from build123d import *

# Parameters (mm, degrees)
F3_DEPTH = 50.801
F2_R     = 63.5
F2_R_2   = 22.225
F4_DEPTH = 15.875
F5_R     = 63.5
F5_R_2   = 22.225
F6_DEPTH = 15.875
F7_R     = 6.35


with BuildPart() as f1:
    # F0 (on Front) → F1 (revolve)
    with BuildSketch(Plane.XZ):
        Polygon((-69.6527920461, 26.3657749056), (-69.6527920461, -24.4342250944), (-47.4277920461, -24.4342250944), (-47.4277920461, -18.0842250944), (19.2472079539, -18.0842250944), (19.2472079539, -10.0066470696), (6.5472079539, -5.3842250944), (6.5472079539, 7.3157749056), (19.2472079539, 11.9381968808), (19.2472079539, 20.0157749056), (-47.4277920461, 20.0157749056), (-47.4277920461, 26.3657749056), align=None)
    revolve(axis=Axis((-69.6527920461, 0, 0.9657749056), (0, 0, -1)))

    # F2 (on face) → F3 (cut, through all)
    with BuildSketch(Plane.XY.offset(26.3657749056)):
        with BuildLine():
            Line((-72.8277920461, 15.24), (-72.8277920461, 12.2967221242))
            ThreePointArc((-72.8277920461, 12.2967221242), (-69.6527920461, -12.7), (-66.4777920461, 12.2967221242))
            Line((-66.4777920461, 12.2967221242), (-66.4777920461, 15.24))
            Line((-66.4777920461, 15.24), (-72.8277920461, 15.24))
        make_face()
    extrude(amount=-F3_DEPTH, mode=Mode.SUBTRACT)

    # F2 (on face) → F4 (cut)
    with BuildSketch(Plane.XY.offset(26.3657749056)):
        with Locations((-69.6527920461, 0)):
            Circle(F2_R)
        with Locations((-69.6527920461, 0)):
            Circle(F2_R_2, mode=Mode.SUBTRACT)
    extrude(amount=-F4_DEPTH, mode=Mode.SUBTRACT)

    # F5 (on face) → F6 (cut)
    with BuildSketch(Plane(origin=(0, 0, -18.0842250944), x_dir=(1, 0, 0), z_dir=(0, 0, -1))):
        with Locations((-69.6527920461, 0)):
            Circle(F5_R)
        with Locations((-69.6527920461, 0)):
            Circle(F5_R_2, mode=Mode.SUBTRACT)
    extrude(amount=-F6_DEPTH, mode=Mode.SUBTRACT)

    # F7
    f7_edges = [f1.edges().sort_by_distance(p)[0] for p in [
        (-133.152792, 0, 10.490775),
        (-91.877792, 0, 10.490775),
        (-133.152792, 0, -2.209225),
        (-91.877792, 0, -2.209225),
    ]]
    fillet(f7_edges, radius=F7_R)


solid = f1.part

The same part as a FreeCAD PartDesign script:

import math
import FreeCAD as App
import Part
import Sketcher
from FreeCAD import Vector
Q = App.Units.Quantity


def edges_at(feature, points):
    """Names of the edges that pass closest to the given points."""
    edges = feature.Shape.Edges
    near = lambda p: min(range(len(edges)), key=lambda i: edges[i].distToShape(Part.Vertex(*p))[0])
    return sorted({f"Edge{near(p) + 1}" for p in points})


def add_polygon(sketch, points):
    """Adds a closed chain of lines whose ends are joined by coincident constraints."""
    first, n = sketch.GeometryCount, len(points)
    for a, b in zip(points, points[1:] + points[:1]):
        sketch.addGeometry(Part.LineSegment(App.Vector(*a, 0), App.Vector(*b, 0)), False)
    for i in range(n):
        sketch.addConstraint(Sketcher.Constraint("Coincident", first + i, 2, first + (i + 1) % n, 1))

doc = App.newDocument("Part")
params = doc.addObject("Spreadsheet::Sheet", "Params")
for row, (alias, value) in enumerate([
    ("sketch1_height", "2 in"),
    ("sketch1_height2", "0.5 in"),
    ("sketch1_width", "0.875 in"),
    ("revolution_angle", "360 deg"),
    ("sketch2_radius", "0.5 in"),
    ("sketch2_width", "0.25 in"),
    ("sketch3_diameter", "5 in"),
    ("sketch3_diameter2", "1.75 in"),
    ("pocket2_length", "0.625 in"),
    ("sketch4_diameter", "5 in"),
    ("sketch4_diameter2", "1.75 in"),
    ("pocket3_length", "0.625 in"),
    ("fillet_radius", "0.25 in"),
], start=1):
    params.set(f"A{row}", alias)
    params.set(f"B{row}", "=" + value)
    params.setAlias(f"B{row}", alias)

body = doc.addObject("PartDesign::Body", "Body")

sketch1 = body.newObject("Sketcher::SketchObject", "Sketch")
sketch1.AttachmentSupport = (doc.getObject("XZ_Plane"), [""])
sketch1.MapMode = "FlatFace"
add_polygon(sketch1, [(-70, 26), (-70, -24), (-47, -24), (-47, -18), (19, -18), (19, -10), (7, -5), (7, 7), (19, 12), (19, 20), (-47, 20), (-47, 26)])
sketch1.addGeometry(Part.LineSegment(Vector(-70, 26, 0), Vector(-70, -24, 0)), True)
sketch1.addConstraint([
    Sketcher.Constraint("Vertical", 0),
    Sketcher.Constraint("Horizontal", 1),
    Sketcher.Constraint("Vertical", 2),
    Sketcher.Constraint("Horizontal", 3),
    Sketcher.Constraint("Vertical", 4),
    Sketcher.Constraint("Vertical", 6),
    Sketcher.Constraint("Vertical", 8),
    Sketcher.Constraint("Horizontal", 9),
    Sketcher.Constraint("Vertical", 10),
    Sketcher.Constraint("Horizontal", 11),
    Sketcher.Constraint("Vertical", 12),
    Sketcher.Constraint("Coincident", 12, 1, 11, 2),
    Sketcher.Constraint("Horizontal", 1, 2, 12, 2),
    Sketcher.Constraint("Vertical", 4, 2, 7, 2),
    Sketcher.Constraint("Vertical", 2, 2, 9, 2),
    Sketcher.Constraint("Equal", 4, 8),
    Sketcher.Constraint("Equal", 2, 10),
    Sketcher.Constraint("Equal", 5, 7),
    Sketcher.Constraint("DistanceY", 0, 2, 0, 1, Q("2 in")),
    Sketcher.Constraint("DistanceY", 6, 1, 6, 2, Q("0.5 in")),
    Sketcher.Constraint("Angle", 5, Q("160 deg")),
    Sketcher.Constraint("DistanceX", 0, 2, 5, 2, Q("3 in")),
    Sketcher.Constraint("DistanceY", 3, 2, 6, 2, Q("1 in")),
    Sketcher.Constraint("DistanceX", 0, 2, 3, 2, Q("3.5 in")),
    Sketcher.Constraint("DistanceX", 1, 1, 1, 2, Q("0.875 in")),
    Sketcher.Constraint("DistanceX", 0, 2, -1, 1, 69.652792),
    Sketcher.Constraint("DistanceY", 0, 2, -1, 1, 24.434225),
])
sketch1.setExpression("Constraints[30]", "Params.sketch1_height")
sketch1.setExpression("Constraints[31]", "Params.sketch1_height2")
sketch1.setExpression("Constraints[36]", "Params.sketch1_width")
revolution = body.newObject("PartDesign::Revolution", "Revolution")
revolution.Profile = sketch1
revolution.ReferenceAxis = (sketch1, ["Axis0"])
revolution.setExpression("Angle", "Params.revolution_angle")

sketch2 = body.newObject("Sketcher::SketchObject", "Sketch001")
sketch2.AttachmentSupport = (doc.getObject("XY_Plane"), [""])
sketch2.MapMode = "FlatFace"
sketch2.AttachmentOffset = App.Placement(Vector(0, 0, 26.365775), App.Rotation())
sketch2.addGeometry([
    Part.LineSegment(Vector(-72.8, 15.2, 0), Vector(-72.8, 12.3, 0)),
    Part.ArcOfCircle(Part.Circle(Vector(-69.7, 0, 0), Vector(0, 0, 1), 12.7), math.radians(104), math.radians(436)),
    Part.LineSegment(Vector(-66.5, 12.3, 0), Vector(-66.5, 15.2, 0)),
    Part.LineSegment(Vector(-66.5, 15.2, 0), Vector(-72.8, 15.2, 0)),
], False)
sketch2.addConstraint([
    Sketcher.Constraint("Coincident", 0, 2, 1, 1),
    Sketcher.Constraint("Coincident", 1, 2, 2, 1),
    Sketcher.Constraint("Coincident", 2, 2, 3, 1),
    Sketcher.Constraint("Coincident", 3, 2, 0, 1),
    Sketcher.Constraint("Vertical", 0),
    Sketcher.Constraint("Vertical", 2),
    Sketcher.Constraint("Horizontal", 3),
    Sketcher.Constraint("PointOnObject", 1, 3, -1),
    Sketcher.Constraint("Horizontal", 0, 2, 1, 2),
    Sketcher.Constraint("Radius", 1, Q("0.5 in")),
    Sketcher.Constraint("DistanceX", 3, 2, 3, 1, Q("0.25 in")),
    Sketcher.Constraint("DistanceY", -1, 1, 2, 2, Q("0.6 in")),
    Sketcher.Constraint("DistanceX", 1, 3, -1, 1, 69.652792),
])
sketch2.setExpression("Constraints[9]", "Params.sketch2_radius")
sketch2.setExpression("Constraints[10]", "Params.sketch2_width")
pocket1 = body.newObject("PartDesign::Pocket", "Pocket")
pocket1.Profile = sketch2
pocket1.Type = "ThroughAll"

sketch3 = body.newObject("Sketcher::SketchObject", "Sketch002")
sketch3.AttachmentSupport = (doc.getObject("XY_Plane"), [""])
sketch3.MapMode = "FlatFace"
sketch3.AttachmentOffset = App.Placement(Vector(0, 0, 26.365775), App.Rotation())
sketch3.addGeometry([
    Part.Circle(Vector(-70, 0, 0), Vector(0, 0, 1), 64),
    Part.Circle(Vector(-70, 0, 0), Vector(0, 0, 1), 22),
], False)
sketch3.addConstraint([
    Sketcher.Constraint("Coincident", 1, 3, 0, 3),
    Sketcher.Constraint("PointOnObject", 0, 3, -1),
    Sketcher.Constraint("Diameter", 0, Q("5 in")),
    Sketcher.Constraint("Diameter", 1, Q("1.75 in")),
    Sketcher.Constraint("DistanceX", 0, 3, -1, 1, 69.652792),
])
sketch3.setExpression("Constraints[2]", "Params.sketch3_diameter")
sketch3.setExpression("Constraints[3]", "Params.sketch3_diameter2")
pocket2 = body.newObject("PartDesign::Pocket", "Pocket001")
pocket2.Profile = sketch3
pocket2.setExpression("Length", "Params.pocket2_length")

sketch4 = body.newObject("Sketcher::SketchObject", "Sketch003")
sketch4.AttachmentSupport = (doc.getObject("XY_Plane"), [""])
sketch4.MapMode = "FlatFace"
sketch4.AttachmentOffset = App.Placement(Vector(0, 0, -18.084225), App.Rotation())
sketch4.addGeometry([
    Part.Circle(Vector(-70, 0, 0), Vector(0, 0, 1), 64),
    Part.Circle(Vector(-70, 0, 0), Vector(0, 0, 1), 22),
], False)
sketch4.addConstraint([
    Sketcher.Constraint("Coincident", 1, 3, 0, 3),
    Sketcher.Constraint("PointOnObject", 0, 3, -1),
    Sketcher.Constraint("Diameter", 0, Q("5 in")),
    Sketcher.Constraint("Diameter", 1, Q("1.75 in")),
    Sketcher.Constraint("DistanceX", 0, 3, -1, 1, 69.652792),
])
sketch4.setExpression("Constraints[2]", "Params.sketch4_diameter")
sketch4.setExpression("Constraints[3]", "Params.sketch4_diameter2")
pocket3 = body.newObject("PartDesign::Pocket", "Pocket002")
pocket3.Profile = sketch4
pocket3.setExpression("Length", "Params.pocket3_length")
pocket3.Reversed = True
doc.recompute()

fillet = body.newObject("PartDesign::Fillet", "Fillet")
fillet.Base = (pocket3, edges_at(pocket3, [
    (-133.153, 0, 10.491),
    (-91.878, 0, 10.491),
    (-133.153, 0, -2.209),
    (-91.878, 0, -2.209),
]))
fillet.setExpression("Radius", "Params.fillet_radius")

doc.recompute()
